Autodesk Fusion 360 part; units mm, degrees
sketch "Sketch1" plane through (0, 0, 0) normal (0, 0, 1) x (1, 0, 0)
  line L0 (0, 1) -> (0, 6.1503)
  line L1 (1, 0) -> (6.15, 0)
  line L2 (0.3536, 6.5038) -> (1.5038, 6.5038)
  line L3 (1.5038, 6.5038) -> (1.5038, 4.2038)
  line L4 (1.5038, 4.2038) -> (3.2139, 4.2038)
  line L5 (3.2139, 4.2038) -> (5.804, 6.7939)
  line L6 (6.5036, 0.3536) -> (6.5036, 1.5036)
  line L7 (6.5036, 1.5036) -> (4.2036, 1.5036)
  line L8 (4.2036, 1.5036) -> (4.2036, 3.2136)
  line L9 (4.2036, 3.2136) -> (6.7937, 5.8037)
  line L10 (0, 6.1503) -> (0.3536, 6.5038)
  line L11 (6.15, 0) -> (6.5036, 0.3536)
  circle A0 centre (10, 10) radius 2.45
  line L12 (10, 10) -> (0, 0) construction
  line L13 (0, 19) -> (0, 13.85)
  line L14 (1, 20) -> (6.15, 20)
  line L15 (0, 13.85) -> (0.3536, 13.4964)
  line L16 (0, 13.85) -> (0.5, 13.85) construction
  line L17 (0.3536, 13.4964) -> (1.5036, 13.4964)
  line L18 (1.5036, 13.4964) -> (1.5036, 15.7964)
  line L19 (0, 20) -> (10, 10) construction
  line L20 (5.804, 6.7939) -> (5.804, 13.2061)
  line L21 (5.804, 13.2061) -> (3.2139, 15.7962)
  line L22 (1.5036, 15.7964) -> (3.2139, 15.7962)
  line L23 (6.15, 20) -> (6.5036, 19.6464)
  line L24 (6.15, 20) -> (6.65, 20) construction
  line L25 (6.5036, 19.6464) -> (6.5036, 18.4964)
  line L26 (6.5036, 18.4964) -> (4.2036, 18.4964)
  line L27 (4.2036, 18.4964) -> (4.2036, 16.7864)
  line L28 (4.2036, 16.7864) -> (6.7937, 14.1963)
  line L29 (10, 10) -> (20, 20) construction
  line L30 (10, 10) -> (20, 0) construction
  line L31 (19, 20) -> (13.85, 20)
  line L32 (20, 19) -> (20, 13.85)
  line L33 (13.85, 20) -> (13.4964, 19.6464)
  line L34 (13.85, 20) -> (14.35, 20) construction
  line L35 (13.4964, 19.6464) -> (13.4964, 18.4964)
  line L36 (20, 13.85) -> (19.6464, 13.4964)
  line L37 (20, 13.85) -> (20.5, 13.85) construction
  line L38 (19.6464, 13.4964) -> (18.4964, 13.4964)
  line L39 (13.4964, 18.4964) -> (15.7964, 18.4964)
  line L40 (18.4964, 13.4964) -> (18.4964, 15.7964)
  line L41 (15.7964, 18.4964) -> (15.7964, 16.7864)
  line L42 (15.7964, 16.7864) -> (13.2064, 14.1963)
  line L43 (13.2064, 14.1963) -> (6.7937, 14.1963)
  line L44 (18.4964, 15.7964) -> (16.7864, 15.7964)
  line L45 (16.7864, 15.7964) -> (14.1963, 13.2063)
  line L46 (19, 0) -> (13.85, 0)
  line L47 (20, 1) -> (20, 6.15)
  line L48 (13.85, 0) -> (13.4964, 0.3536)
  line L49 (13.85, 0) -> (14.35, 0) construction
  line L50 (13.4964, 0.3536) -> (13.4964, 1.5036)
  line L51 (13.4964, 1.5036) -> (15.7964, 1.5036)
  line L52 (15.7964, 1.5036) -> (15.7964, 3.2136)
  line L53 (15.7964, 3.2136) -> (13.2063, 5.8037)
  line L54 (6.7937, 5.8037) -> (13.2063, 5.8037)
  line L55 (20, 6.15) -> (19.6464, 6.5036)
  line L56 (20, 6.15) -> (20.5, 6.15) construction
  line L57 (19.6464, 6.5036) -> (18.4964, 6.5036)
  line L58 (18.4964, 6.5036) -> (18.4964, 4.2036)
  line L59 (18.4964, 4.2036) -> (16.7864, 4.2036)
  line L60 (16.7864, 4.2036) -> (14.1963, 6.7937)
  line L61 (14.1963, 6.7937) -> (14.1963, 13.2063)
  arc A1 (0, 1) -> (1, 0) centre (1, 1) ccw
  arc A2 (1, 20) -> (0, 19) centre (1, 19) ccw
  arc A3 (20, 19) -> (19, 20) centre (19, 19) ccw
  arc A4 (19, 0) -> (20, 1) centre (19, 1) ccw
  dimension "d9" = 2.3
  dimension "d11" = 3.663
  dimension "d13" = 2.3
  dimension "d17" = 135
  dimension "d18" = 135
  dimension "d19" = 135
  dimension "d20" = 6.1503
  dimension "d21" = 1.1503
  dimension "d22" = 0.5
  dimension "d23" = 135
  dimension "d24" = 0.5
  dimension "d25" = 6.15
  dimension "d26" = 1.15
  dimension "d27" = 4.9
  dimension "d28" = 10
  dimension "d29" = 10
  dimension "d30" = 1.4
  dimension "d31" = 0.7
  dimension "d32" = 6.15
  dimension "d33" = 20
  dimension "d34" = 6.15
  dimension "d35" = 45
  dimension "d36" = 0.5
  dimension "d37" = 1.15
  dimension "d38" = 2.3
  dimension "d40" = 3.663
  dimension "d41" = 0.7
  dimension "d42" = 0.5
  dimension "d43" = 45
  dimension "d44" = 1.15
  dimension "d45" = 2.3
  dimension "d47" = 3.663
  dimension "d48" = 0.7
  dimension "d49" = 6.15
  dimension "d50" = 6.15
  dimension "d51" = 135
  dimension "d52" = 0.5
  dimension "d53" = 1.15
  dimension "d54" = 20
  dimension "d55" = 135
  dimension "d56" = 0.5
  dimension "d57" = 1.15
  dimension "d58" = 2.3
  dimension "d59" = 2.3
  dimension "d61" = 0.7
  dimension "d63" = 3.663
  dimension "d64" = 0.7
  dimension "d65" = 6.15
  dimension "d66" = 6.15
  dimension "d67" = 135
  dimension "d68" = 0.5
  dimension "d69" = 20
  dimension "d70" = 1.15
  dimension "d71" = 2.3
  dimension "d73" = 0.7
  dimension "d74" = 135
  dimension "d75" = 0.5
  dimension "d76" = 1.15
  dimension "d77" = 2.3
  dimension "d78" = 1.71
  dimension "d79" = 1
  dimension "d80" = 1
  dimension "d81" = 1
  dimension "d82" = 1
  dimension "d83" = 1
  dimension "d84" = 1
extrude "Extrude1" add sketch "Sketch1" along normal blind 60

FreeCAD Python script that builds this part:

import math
import FreeCAD as App
import Part
import Sketcher
Q = App.Units.Quantity

doc = App.newDocument("Part")
params = doc.addObject("Spreadsheet::Sheet", "Params")
for row, (alias, value) in enumerate([
    ("sketch1_radius", "1 mm"),
    ("sketch1_diameter", "4.9 mm"),
    ("sketch1_width", "2.3 mm"),
    ("sketch1_length", "0.5 mm"),
    ("sketch1_width2", "1.15 mm"),
    ("pad1_length", "60 mm"),
], start=1):
    params.set(f"A{row}", alias)
    params.set(f"B{row}", "=" + value)
    params.setAlias(f"B{row}", alias)

body = doc.addObject("PartDesign::Body", "Body")

sketch1 = body.newObject("Sketcher::SketchObject", "Sketch")
sketch1.AttachmentSupport = (doc.getObject("XY_Plane"), [""])
sketch1.MapMode = "FlatFace"
sketch1.addGeometry([
    Part.LineSegment(App.Vector(0, 6.15, 0), App.Vector(0, 1, 0)),
    Part.ArcOfCircle(Part.Circle(App.Vector(1, 1, 0), App.Vector(0, 0, 1), 1), math.radians(180), math.radians(270)),
    Part.LineSegment(App.Vector(1, 0, 0), App.Vector(6.15, 0, 0)),
    Part.LineSegment(App.Vector(6.15, 0, 0), App.Vector(6.5, 0.35, 0)),
    Part.LineSegment(App.Vector(6.5, 0.35, 0), App.Vector(6.5, 1.5, 0)),
    Part.LineSegment(App.Vector(6.5, 1.5, 0), App.Vector(4.2, 1.5, 0)),
    Part.LineSegment(App.Vector(4.2, 1.5, 0), App.Vector(4.2, 3.21, 0)),
    Part.LineSegment(App.Vector(4.2, 3.21, 0), App.Vector(6.79, 5.8, 0)),
    Part.LineSegment(App.Vector(6.79, 5.8, 0), App.Vector(13.21, 5.8, 0)),
    Part.LineSegment(App.Vector(13.21, 5.8, 0), App.Vector(15.8, 3.21, 0)),
    Part.LineSegment(App.Vector(15.8, 3.21, 0), App.Vector(15.8, 1.5, 0)),
    Part.LineSegment(App.Vector(15.8, 1.5, 0), App.Vector(13.5, 1.5, 0)),
    Part.LineSegment(App.Vector(13.5, 1.5, 0), App.Vector(13.5, 0.35, 0)),
    Part.LineSegment(App.Vector(13.5, 0.35, 0), App.Vector(13.85, 0, 0)),
    Part.LineSegment(App.Vector(13.85, 0, 0), App.Vector(19, 0, 0)),
    Part.ArcOfCircle(Part.Circle(App.Vector(19, 1, 0), App.Vector(0, 0, 1), 1), math.radians(-90), math.radians(0)),
    Part.LineSegment(App.Vector(20, 1, 0), App.Vector(20, 6.15, 0)),
    Part.LineSegment(App.Vector(20, 6.15, 0), App.Vector(19.65, 6.5, 0)),
    Part.LineSegment(App.Vector(19.65, 6.5, 0), App.Vector(18.5, 6.5, 0)),
    Part.LineSegment(App.Vector(18.5, 6.5, 0), App.Vector(18.5, 4.2, 0)),
    Part.LineSegment(App.Vector(18.5, 4.2, 0), App.Vector(16.79, 4.2, 0)),
    Part.LineSegment(App.Vector(16.79, 4.2, 0), App.Vector(14.2, 6.79, 0)),
    Part.LineSegment(App.Vector(14.2, 6.79, 0), App.Vector(14.2, 13.21, 0)),
    Part.LineSegment(App.Vector(14.2, 13.21, 0), App.Vector(16.79, 15.8, 0)),
    Part.LineSegment(App.Vector(16.79, 15.8, 0), App.Vector(18.5, 15.8, 0)),
    Part.LineSegment(App.Vector(18.5, 15.8, 0), App.Vector(18.5, 13.5, 0)),
    Part.LineSegment(App.Vector(18.5, 13.5, 0), App.Vector(19.65, 13.5, 0)),
    Part.LineSegment(App.Vector(19.65, 13.5, 0), App.Vector(20, 13.85, 0)),
    Part.LineSegment(App.Vector(20, 13.85, 0), App.Vector(20, 19, 0)),
    Part.ArcOfCircle(Part.Circle(App.Vector(19, 19, 0), App.Vector(0, 0, 1), 1), math.radians(0), math.radians(90)),
    Part.LineSegment(App.Vector(19, 20, 0), App.Vector(13.85, 20, 0)),
    Part.LineSegment(App.Vector(13.85, 20, 0), App.Vector(13.5, 19.65, 0)),
    Part.LineSegment(App.Vector(13.5, 19.65, 0), App.Vector(13.5, 18.5, 0)),
    Part.LineSegment(App.Vector(13.5, 18.5, 0), App.Vector(15.8, 18.5, 0)),
    Part.LineSegment(App.Vector(15.8, 18.5, 0), App.Vector(15.8, 16.79, 0)),
    Part.LineSegment(App.Vector(15.8, 16.79, 0), App.Vector(13.21, 14.2, 0)),
    Part.LineSegment(App.Vector(13.21, 14.2, 0), App.Vector(6.79, 14.2, 0)),
    Part.LineSegment(App.Vector(6.79, 14.2, 0), App.Vector(4.2, 16.79, 0)),
    Part.LineSegment(App.Vector(4.2, 16.79, 0), App.Vector(4.2, 18.5, 0)),
    Part.LineSegment(App.Vector(4.2, 18.5, 0), App.Vector(6.5, 18.5, 0)),
    Part.LineSegment(App.Vector(6.5, 18.5, 0), App.Vector(6.5, 19.65, 0)),
    Part.LineSegment(App.Vector(6.5, 19.65, 0), App.Vector(6.15, 20, 0)),
    Part.LineSegment(App.Vector(6.15, 20, 0), App.Vector(1, 20, 0)),
    Part.ArcOfCircle(Part.Circle(App.Vector(1, 19, 0), App.Vector(0, 0, 1), 1), math.radians(90), math.radians(180)),
    Part.LineSegment(App.Vector(0, 19, 0), App.Vector(0, 13.85, 0)),
    Part.LineSegment(App.Vector(0, 13.85, 0), App.Vector(0.35, 13.5, 0)),
    Part.LineSegment(App.Vector(0.35, 13.5, 0), App.Vector(1.5, 13.5, 0)),
    Part.LineSegment(App.Vector(1.5, 13.5, 0), App.Vector(1.5, 15.8, 0)),
    Part.LineSegment(App.Vector(1.5, 15.8, 0), App.Vector(3.21, 15.8, 0)),
    Part.LineSegment(App.Vector(3.21, 15.8, 0), App.Vector(5.8, 13.21, 0)),
    Part.LineSegment(App.Vector(5.8, 13.21, 0), App.Vector(5.8, 6.79, 0)),
    Part.LineSegment(App.Vector(5.8, 6.79, 0), App.Vector(3.21, 4.2, 0)),
    Part.LineSegment(App.Vector(3.21, 4.2, 0), App.Vector(1.5, 4.2, 0)),
    Part.LineSegment(App.Vector(1.5, 4.2, 0), App.Vector(1.5, 6.5, 0)),
    Part.LineSegment(App.Vector(1.5, 6.5, 0), App.Vector(0.35, 6.5, 0)),
    Part.LineSegment(App.Vector(0.35, 6.5, 0), App.Vector(0, 6.15, 0)),
    Part.Circle(App.Vector(10, 10, 0), App.Vector(0, 0, 1), 2.45),
], False)
sketch1.addConstraint([
    Sketcher.Constraint("Tangent", 0, 2, 1, 1),
    Sketcher.Constraint("Tangent", 1, 2, 2, 1),
    Sketcher.Constraint("Coincident", 2, 2, 3, 1),
    Sketcher.Constraint("Coincident", 3, 2, 4, 1),
    Sketcher.Constraint("Coincident", 4, 2, 5, 1),
    Sketcher.Constraint("Coincident", 5, 2, 6, 1),
    Sketcher.Constraint("Coincident", 6, 2, 7, 1),
    Sketcher.Constraint("Coincident", 7, 2, 8, 1),
    Sketcher.Constraint("Coincident", 8, 2, 9, 1),
    Sketcher.Constraint("Coincident", 9, 2, 10, 1),
    Sketcher.Constraint("Coincident", 10, 2, 11, 1),
    Sketcher.Constraint("Coincident", 11, 2, 12, 1),
    Sketcher.Constraint("Coincident", 12, 2, 13, 1),
    Sketcher.Constraint("Coincident", 13, 2, 14, 1),
    Sketcher.Constraint("Tangent", 14, 2, 15, 1),
    Sketcher.Constraint("Tangent", 15, 2, 16, 1),
    Sketcher.Constraint("Coincident", 16, 2, 17, 1),
    Sketcher.Constraint("Coincident", 17, 2, 18, 1),
    Sketcher.Constraint("Coincident", 18, 2, 19, 1),
    Sketcher.Constraint("Coincident", 19, 2, 20, 1),
    Sketcher.Constraint("Coincident", 20, 2, 21, 1),
    Sketcher.Constraint("Coincident", 21, 2, 22, 1),
    Sketcher.Constraint("Coincident", 22, 2, 23, 1),
    Sketcher.Constraint("Coincident", 23, 2, 24, 1),
    Sketcher.Constraint("Coincident", 24, 2, 25, 1),
    Sketcher.Constraint("Coincident", 25, 2, 26, 1),
    Sketcher.Constraint("Coincident", 26, 2, 27, 1),
    Sketcher.Constraint("Coincident", 27, 2, 28, 1),
    Sketcher.Constraint("Tangent", 28, 2, 29, 1),
    Sketcher.Constraint("Tangent", 29, 2, 30, 1),
    Sketcher.Constraint("Coincident", 30, 2, 31, 1),
    Sketcher.Constraint("Coincident", 31, 2, 32, 1),
    Sketcher.Constraint("Coincident", 32, 2, 33, 1),
    Sketcher.Constraint("Coincident", 33, 2, 34, 1),
    Sketcher.Constraint("Coincident", 34, 2, 35, 1),
    Sketcher.Constraint("Coincident", 35, 2, 36, 1),
    Sketcher.Constraint("Coincident", 36, 2, 37, 1),
    Sketcher.Constraint("Coincident", 37, 2, 38, 1),
    Sketcher.Constraint("Coincident", 38, 2, 39, 1),
    Sketcher.Constraint("Coincident", 39, 2, 40, 1),
    Sketcher.Constraint("Coincident", 40, 2, 41, 1),
    Sketcher.Constraint("Coincident", 41, 2, 42, 1),
    Sketcher.Constraint("Tangent", 42, 2, 43, 1),
    Sketcher.Constraint("Tangent", 43, 2, 44, 1),
    Sketcher.Constraint("Coincident", 44, 2, 45, 1),
    Sketcher.Constraint("Coincident", 45, 2, 46, 1),
    Sketcher.Constraint("Coincident", 46, 2, 47, 1),
    Sketcher.Constraint("Coincident", 47, 2, 48, 1),
    Sketcher.Constraint("Coincident", 48, 2, 49, 1),
    Sketcher.Constraint("Coincident", 49, 2, 50, 1),
    Sketcher.Constraint("Coincident", 50, 2, 51, 1),
    Sketcher.Constraint("Coincident", 51, 2, 52, 1),
    Sketcher.Constraint("Coincident", 52, 2, 53, 1),
    Sketcher.Constraint("Coincident", 53, 2, 54, 1),
    Sketcher.Constraint("Coincident", 54, 2, 55, 1),
    Sketcher.Constraint("Coincident", 55, 2, 0, 1),
    Sketcher.Constraint("Vertical", 0),
    Sketcher.Constraint("Horizontal", 2),
    Sketcher.Constraint("Vertical", 4),
    Sketcher.Constraint("Horizontal", 5),
    Sketcher.Constraint("Vertical", 6),
    Sketcher.Constraint("Horizontal", 8),
    Sketcher.Constraint("Vertical", 10),
    Sketcher.Constraint("Horizontal", 11),
    Sketcher.Constraint("Vertical", 12),
    Sketcher.Constraint("Horizontal", 14),
    Sketcher.Constraint("Vertical", 16),
    Sketcher.Constraint("Horizontal", 18),
    Sketcher.Constraint("Vertical", 19),
    Sketcher.Constraint("Horizontal", 20),
    Sketcher.Constraint("Vertical", 22),
    Sketcher.Constraint("Horizontal", 24),
    Sketcher.Constraint("Vertical", 25),
    Sketcher.Constraint("Horizontal", 26),
    Sketcher.Constraint("Vertical", 28),
    Sketcher.Constraint("Horizontal", 30),
    Sketcher.Constraint("Vertical", 32),
    Sketcher.Constraint("Horizontal", 33),
    Sketcher.Constraint("Vertical", 34),
    Sketcher.Constraint("Horizontal", 36),
    Sketcher.Constraint("Vertical", 38),
    Sketcher.Constraint("Horizontal", 39),
    Sketcher.Constraint("Vertical", 40),
    Sketcher.Constraint("Horizontal", 42),
    Sketcher.Constraint("Vertical", 44),
    Sketcher.Constraint("Horizontal", 46),
    Sketcher.Constraint("Vertical", 47),
    Sketcher.Constraint("Horizontal", 48),
    Sketcher.Constraint("Vertical", 50),
    Sketcher.Constraint("Horizontal", 52),
    Sketcher.Constraint("Vertical", 53),
    Sketcher.Constraint("Horizontal", 54),
    Sketcher.Constraint("Equal", 1, 15),
    Sketcher.Constraint("Equal", 15, 29),
    Sketcher.Constraint("Equal", 29, 43),
    Sketcher.Constraint("PointOnObject", 0, 2, -2),
    Sketcher.Constraint("PointOnObject", 1, 2, -1),
    Sketcher.Constraint("PointOnObject", 13, 2, -1),
    Sketcher.Constraint("PointOnObject", 43, 2, -2),
    Sketcher.Constraint("Parallel", 3, 7),
    Sketcher.Constraint("Perpendicular", 7, 9),
    Sketcher.Constraint("Parallel", 9, 13),
    Sketcher.Constraint("Parallel", 13, 17),
    Sketcher.Constraint("Parallel", 17, 21),
    Sketcher.Constraint("Perpendicular", 21, 23),
    Sketcher.Constraint("Parallel", 23, 27),
    Sketcher.Constraint("Parallel", 27, 31),
    Sketcher.Constraint("Parallel", 31, 35),
    Sketcher.Constraint("Perpendicular", 35, 37),
    Sketcher.Constraint("Parallel", 37, 41),
    Sketcher.Constraint("Parallel", 41, 45),
    Sketcher.Constraint("Parallel", 45, 49),
    Sketcher.Constraint("Perpendicular", 49, 51),
    Sketcher.Constraint("Parallel", 51, 55),
    Sketcher.Constraint("Horizontal", 29, 3, 43, 3),
    Sketcher.Constraint("Horizontal", 6, 2, 9, 2),
    Sketcher.Constraint("Horizontal", 5, 2, 10, 2),
    Sketcher.Constraint("Horizontal", 3, 2, 12, 2),
    Sketcher.Constraint("Horizontal", 34, 2, 37, 2),
    Sketcher.Constraint("Horizontal", 33, 2, 38, 2),
    Sketcher.Constraint("Horizontal", 31, 2, 40, 2),
    Sketcher.Constraint("Horizontal", 27, 2, 44, 2),
    Sketcher.Constraint("Horizontal", 26, 2, 45, 2),
    Sketcher.Constraint("Horizontal", 24, 2, 47, 2),
    Sketcher.Constraint("Horizontal", 21, 2, 50, 2),
    Sketcher.Constraint("Vertical", 15, 3, 29, 3),
    Sketcher.Constraint("Vertical", 20, 2, 23, 2),
    Sketcher.Constraint("Vertical", 19, 2, 24, 2),
    Sketcher.Constraint("Vertical", 17, 2, 26, 2),
    Sketcher.Constraint("Vertical", 13, 2, 30, 2),
    Sketcher.Constraint("Vertical", 12, 2, 31, 2),
    Sketcher.Constraint("Vertical", 10, 2, 33, 2),
    Sketcher.Constraint("Vertical", 8, 2, 35, 2),
    Sketcher.Constraint("Vertical", 7, 2, 36, 2),
    Sketcher.Constraint("Vertical", 6, 2, 37, 2),
    Sketcher.Constraint("Vertical", 4, 2, 39, 2),
    Sketcher.Constraint("Vertical", 48, 2, 51, 2),
    Sketcher.Constraint("Vertical", 47, 2, 52, 2),
    Sketcher.Constraint("Vertical", 45, 2, 54, 2),
    Sketcher.Constraint("Equal", 5, 11),
    Sketcher.Constraint("Equal", 2, 14),
    Sketcher.Constraint("Equal", 26, 46),
    Sketcher.Constraint("Equal", 24, 52),
    Sketcher.Constraint("Equal", 54, 4),
    Sketcher.Constraint("Equal", 52, 6),
    Sketcher.Constraint("Equal", 42, 16),
    Sketcher.Constraint("Equal", 39, 19),
    Sketcher.Constraint("Equal", 36, 22),
    Sketcher.Constraint("Equal", 19, 25),
    Sketcher.Constraint("Equal", 16, 28),
    Sketcher.Constraint("Equal", 12, 32),
    Sketcher.Constraint("Equal", 10, 34),
    Sketcher.Constraint("Equal", 47, 53),
    Sketcher.Constraint("Equal", 13, 17),
    Sketcher.Constraint("Equal", 9, 21),
    Sketcher.Constraint("Equal", 37, 49),
    Sketcher.Constraint("Radius", 1, Q("1 mm")),
    Sketcher.Constraint("Diameter", 56, Q("4.9 mm")),
    Sketcher.Constraint("DistanceX", 5, 2, 5, 1, Q("2.3 mm")),
    Sketcher.Constraint("DistanceX", -1, 1, 56, 3, Q("10 mm")),
    Sketcher.Constraint("DistanceY", -1, 1, 56, 3, Q("10 mm")),
    Sketcher.Constraint("DistanceX", -1, 1, 15, 2, Q("20 mm")),
    Sketcher.Constraint("Distance", 3, Q("0.5 mm")),
    Sketcher.Constraint("DistanceX", 18, 2, 18, 1, Q("1.15 mm")),
    Sketcher.Constraint("DistanceX", 20, 2, 20, 1, Q("1.71 mm")),
    Sketcher.Constraint("DistanceX", -1, 1, 2, 2, Q("6.15 mm")),
    Sketcher.Constraint("Distance", 7, Q("3.663 mm")),
])
sketch1.setExpression("Constraints[156]", "Params.sketch1_radius")
sketch1.setExpression("Constraints[157]", "Params.sketch1_diameter")
sketch1.setExpression("Constraints[158]", "Params.sketch1_width")
sketch1.setExpression("Constraints[162]", "Params.sketch1_length")
sketch1.setExpression("Constraints[163]", "Params.sketch1_width2")
pad1 = body.newObject("PartDesign::Pad", "Pad")
pad1.Profile = sketch1
pad1.setExpression("Length", "Params.pad1_length")

doc.recompute()
